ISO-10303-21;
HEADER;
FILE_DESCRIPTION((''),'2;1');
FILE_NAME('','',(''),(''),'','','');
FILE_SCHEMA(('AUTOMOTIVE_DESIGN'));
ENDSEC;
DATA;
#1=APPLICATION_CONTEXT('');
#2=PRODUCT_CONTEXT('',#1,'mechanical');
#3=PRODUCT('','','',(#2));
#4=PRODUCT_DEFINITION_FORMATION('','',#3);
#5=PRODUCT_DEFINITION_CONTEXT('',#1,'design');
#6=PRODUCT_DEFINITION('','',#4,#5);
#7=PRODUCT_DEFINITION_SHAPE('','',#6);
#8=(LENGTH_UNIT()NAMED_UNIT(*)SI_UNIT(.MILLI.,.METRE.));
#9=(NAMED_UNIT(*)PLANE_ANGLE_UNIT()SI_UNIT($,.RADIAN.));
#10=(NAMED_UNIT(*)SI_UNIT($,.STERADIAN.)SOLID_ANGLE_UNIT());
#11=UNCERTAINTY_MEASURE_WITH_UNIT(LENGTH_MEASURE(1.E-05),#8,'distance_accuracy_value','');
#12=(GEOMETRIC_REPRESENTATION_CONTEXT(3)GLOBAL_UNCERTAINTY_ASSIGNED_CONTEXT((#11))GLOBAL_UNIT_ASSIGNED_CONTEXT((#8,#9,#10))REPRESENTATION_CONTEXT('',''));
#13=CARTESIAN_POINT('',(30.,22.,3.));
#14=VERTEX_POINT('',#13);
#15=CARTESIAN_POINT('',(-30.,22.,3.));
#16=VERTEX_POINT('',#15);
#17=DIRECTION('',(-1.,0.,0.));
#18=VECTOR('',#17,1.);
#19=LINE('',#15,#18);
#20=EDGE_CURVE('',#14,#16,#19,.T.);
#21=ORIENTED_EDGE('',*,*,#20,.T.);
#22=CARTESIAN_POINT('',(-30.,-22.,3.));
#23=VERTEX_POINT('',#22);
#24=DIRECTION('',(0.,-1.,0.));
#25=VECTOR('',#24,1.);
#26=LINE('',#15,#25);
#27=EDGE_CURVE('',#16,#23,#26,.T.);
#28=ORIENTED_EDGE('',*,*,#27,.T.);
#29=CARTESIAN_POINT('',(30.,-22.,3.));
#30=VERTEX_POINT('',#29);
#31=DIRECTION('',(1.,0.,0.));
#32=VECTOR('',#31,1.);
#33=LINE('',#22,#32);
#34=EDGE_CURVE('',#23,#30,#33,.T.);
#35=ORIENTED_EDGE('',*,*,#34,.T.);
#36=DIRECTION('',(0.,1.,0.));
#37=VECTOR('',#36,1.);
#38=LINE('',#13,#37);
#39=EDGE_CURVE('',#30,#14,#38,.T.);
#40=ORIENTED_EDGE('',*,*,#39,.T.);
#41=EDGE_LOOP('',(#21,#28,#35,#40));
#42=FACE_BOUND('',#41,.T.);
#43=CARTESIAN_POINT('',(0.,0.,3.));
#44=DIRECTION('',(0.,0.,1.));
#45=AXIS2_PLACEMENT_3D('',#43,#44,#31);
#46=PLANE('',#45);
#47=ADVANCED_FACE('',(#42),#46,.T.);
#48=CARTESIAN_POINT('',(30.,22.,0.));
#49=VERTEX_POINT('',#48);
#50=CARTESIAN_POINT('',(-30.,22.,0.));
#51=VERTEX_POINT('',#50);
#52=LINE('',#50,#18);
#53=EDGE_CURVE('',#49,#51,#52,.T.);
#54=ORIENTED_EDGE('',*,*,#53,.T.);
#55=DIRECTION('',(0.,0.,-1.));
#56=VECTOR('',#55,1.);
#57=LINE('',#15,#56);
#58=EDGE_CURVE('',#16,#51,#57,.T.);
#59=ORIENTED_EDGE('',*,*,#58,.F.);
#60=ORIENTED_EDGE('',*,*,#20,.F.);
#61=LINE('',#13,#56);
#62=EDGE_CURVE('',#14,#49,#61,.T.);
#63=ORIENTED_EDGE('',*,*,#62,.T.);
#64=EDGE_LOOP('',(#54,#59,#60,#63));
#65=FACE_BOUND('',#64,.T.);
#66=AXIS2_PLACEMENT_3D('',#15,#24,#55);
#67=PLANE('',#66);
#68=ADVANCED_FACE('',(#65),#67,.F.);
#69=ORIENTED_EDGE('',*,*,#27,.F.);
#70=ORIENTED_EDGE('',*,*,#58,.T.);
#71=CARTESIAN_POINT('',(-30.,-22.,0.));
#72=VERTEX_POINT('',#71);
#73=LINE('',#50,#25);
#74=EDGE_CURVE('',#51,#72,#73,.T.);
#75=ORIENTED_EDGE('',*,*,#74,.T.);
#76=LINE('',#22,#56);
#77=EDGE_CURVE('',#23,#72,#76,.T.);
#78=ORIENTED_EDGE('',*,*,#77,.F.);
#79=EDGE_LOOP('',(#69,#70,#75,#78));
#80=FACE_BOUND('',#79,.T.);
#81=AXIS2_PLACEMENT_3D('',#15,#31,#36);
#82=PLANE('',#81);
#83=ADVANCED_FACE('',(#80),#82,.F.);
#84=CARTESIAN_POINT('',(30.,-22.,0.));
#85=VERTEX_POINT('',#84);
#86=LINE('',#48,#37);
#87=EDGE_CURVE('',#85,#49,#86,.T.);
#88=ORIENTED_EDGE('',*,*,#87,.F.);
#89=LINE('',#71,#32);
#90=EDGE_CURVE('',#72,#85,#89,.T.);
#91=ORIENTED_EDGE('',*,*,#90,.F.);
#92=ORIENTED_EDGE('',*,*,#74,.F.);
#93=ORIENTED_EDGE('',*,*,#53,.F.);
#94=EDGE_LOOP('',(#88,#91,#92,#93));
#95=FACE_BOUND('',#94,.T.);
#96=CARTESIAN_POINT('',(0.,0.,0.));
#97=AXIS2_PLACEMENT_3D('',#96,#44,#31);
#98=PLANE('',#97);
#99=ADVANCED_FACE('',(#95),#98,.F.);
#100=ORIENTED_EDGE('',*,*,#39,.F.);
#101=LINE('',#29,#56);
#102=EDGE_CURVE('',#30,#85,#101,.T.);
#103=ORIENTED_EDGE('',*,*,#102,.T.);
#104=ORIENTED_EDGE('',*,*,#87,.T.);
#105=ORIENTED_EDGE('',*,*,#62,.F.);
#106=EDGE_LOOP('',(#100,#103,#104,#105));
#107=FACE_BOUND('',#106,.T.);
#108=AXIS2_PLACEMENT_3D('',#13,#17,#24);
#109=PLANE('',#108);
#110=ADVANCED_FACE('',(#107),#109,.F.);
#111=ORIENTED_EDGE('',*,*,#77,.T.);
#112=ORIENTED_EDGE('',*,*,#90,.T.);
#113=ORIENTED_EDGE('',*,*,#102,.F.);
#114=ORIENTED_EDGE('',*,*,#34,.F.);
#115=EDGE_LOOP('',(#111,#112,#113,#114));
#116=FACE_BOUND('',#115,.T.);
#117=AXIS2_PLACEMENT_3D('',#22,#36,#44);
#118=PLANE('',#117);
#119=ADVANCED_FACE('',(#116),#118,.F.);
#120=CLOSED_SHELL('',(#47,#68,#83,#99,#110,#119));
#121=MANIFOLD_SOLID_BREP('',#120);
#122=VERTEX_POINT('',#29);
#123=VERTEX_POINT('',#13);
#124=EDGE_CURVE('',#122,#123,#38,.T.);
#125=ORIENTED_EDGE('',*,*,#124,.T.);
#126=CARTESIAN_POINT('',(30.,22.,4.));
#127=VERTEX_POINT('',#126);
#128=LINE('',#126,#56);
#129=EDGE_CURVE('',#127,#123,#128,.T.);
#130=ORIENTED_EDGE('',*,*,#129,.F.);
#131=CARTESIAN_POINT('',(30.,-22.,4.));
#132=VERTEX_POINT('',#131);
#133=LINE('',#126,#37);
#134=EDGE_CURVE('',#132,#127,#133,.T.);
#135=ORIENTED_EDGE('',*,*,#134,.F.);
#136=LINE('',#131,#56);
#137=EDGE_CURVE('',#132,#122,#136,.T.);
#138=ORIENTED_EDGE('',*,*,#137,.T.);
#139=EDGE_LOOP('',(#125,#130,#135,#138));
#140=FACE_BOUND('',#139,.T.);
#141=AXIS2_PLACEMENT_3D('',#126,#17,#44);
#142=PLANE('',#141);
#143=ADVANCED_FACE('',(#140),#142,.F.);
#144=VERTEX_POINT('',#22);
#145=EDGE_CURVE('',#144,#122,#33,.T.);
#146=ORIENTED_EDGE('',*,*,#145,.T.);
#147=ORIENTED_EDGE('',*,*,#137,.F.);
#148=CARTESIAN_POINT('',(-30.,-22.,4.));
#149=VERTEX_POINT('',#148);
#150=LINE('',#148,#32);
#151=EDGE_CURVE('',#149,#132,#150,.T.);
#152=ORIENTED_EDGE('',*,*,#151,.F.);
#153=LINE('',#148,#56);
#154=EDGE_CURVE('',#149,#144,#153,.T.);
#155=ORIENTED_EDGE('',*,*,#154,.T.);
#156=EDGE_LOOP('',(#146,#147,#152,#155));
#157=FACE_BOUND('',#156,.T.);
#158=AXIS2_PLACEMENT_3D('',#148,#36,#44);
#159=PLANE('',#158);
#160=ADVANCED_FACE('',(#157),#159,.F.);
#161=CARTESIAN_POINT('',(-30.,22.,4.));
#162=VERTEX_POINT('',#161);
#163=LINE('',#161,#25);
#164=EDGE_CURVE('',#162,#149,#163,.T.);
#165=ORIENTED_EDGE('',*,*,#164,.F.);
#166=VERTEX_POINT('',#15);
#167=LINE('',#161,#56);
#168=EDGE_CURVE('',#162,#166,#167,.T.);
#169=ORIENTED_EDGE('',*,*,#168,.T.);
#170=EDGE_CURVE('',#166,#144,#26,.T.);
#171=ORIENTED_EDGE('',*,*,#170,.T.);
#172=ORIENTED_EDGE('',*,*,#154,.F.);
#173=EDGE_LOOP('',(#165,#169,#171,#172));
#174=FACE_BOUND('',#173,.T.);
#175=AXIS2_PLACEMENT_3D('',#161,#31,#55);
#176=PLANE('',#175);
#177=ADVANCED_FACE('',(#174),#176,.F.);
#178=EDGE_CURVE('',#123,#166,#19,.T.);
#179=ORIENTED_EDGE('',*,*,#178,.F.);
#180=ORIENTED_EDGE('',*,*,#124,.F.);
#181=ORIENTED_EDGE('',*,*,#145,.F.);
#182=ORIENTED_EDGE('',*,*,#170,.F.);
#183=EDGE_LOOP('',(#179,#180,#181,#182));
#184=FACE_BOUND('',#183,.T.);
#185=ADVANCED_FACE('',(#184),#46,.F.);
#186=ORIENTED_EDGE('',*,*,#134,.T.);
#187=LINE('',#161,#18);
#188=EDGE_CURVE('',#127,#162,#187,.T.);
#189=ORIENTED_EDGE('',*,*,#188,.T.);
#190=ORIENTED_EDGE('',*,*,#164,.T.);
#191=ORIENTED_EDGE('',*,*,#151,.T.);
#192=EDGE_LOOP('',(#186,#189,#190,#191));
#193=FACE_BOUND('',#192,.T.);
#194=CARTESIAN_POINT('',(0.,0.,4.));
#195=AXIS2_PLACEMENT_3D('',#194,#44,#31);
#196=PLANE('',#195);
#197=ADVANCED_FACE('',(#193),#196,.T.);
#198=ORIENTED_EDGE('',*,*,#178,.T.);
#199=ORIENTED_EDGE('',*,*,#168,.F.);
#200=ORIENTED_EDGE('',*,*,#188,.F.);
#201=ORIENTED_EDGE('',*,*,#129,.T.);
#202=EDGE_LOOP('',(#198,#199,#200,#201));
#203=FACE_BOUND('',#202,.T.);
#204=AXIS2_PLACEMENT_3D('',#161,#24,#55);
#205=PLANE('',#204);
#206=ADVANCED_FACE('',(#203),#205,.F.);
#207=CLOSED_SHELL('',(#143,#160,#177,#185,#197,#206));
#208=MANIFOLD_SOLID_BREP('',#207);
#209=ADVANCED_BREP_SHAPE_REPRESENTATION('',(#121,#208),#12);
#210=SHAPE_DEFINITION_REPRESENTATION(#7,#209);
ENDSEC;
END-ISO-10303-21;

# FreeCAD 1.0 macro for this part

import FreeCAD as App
import Part
import Sketcher
from FreeCAD import Vector
Q = App.Units.Quantity


def add_polygon(sketch, points):
    """Adds a closed chain of lines whose ends are joined by coincident constraints."""
    first, n = sketch.GeometryCount, len(points)
    for a, b in zip(points, points[1:] + points[:1]):
        sketch.addGeometry(Part.LineSegment(App.Vector(*a, 0), App.Vector(*b, 0)), False)
    for i in range(n):
        sketch.addConstraint(Sketcher.Constraint("Coincident", first + i, 2, first + (i + 1) % n, 1))

doc = App.newDocument("Part")
body = doc.addObject("PartDesign::Body", "Body")

# Sketch on XY plane
sketch1 = body.newObject("Sketcher::SketchObject", "Sketch")
sketch1.AttachmentSupport = (doc.getObject("XY_Plane"), [""])
sketch1.MapMode = "FlatFace"
add_polygon(sketch1, [(-30, 22), (-30, -22), (30, -22), (30, 22)])  # lines 0-3
sketch1.addConstraint([
    Sketcher.Constraint("Vertical", 0),
    Sketcher.Constraint("Horizontal", 1),
    Sketcher.Constraint("Vertical", 2),
    Sketcher.Constraint("Horizontal", 3),
    Sketcher.Constraint("Symmetric", 0, 2, 2, 2, -1, 1),
    Sketcher.Constraint("DistanceX", 1, 1, 1, 2, Q("60 mm")),
    Sketcher.Constraint("DistanceY", 0, 2, 0, 1, Q("44 mm")),
])
pad1 = body.newObject("PartDesign::Pad", "Pad")
pad1.Profile = sketch1
pad1.Length = 3
body2 = doc.addObject("PartDesign::Body", "Body001")

# Sketch on XY plane
sketch2 = body2.newObject("Sketcher::SketchObject", "Sketch001")
sketch2.AttachmentSupport = (doc.getObject("XY_Plane001"), [""])
sketch2.MapMode = "FlatFace"
sketch2.AttachmentOffset = App.Placement(Vector(0, 0, 3), App.Rotation())
add_polygon(sketch2, [(-30, 22), (-30, -22), (30, -22), (30, 22)])  # lines 0-3
sketch2.addConstraint([
    Sketcher.Constraint("Vertical", 0),
    Sketcher.Constraint("Horizontal", 1),
    Sketcher.Constraint("Vertical", 2),
    Sketcher.Constraint("Horizontal", 3),
    Sketcher.Constraint("Symmetric", 0, 2, 2, 2, -1, 1),
    Sketcher.Constraint("DistanceX", 1, 1, 1, 2, Q("60 mm")),
    Sketcher.Constraint("DistanceY", 0, 2, 0, 1, Q("44 mm")),
])
pad2 = body2.newObject("PartDesign::Pad", "Pad001")
pad2.Profile = sketch2
pad2.Length = 1

doc.recompute()
